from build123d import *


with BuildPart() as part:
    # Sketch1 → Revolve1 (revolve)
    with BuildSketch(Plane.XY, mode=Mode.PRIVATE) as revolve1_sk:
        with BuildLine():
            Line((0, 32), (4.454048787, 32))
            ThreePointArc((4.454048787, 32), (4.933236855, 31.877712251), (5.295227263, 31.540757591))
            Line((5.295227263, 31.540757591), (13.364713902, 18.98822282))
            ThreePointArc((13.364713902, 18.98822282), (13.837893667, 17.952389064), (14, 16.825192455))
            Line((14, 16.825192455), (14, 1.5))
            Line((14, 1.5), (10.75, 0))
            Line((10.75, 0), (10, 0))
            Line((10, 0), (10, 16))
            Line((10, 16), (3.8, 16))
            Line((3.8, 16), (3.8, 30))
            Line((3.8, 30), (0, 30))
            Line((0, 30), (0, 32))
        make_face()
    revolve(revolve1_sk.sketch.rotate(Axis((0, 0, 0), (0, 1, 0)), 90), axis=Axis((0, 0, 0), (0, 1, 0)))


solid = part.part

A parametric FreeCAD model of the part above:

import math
import FreeCAD as App
import Part
import Sketcher

V = App.Vector

doc = App.newDocument("Part")
body = doc.addObject("PartDesign::Body", "Body")

# Sketch on XY plane
sketch1 = doc.addObject("Sketcher::SketchObject", "Sketch")
body.addObject(sketch1)
sketch1.AttachmentSupport = (doc.XY_Plane, [""])
sketch1.MapMode = "FlatFace"
sketch1.addGeometry(Part.LineSegment(V(4.5, 32, 0), V(0, 32, 0)), False)
sketch1.addGeometry(Part.LineSegment(V(0, 32, 0), V(0, 30, 0)), False)
sketch1.addGeometry(Part.LineSegment(V(0, 30, 0), V(3.8, 30, 0)), False)
sketch1.addGeometry(Part.LineSegment(V(3.8, 30, 0), V(3.8, 16, 0)), False)
sketch1.addGeometry(Part.LineSegment(V(3.8, 16, 0), V(10, 16, 0)), False)
sketch1.addGeometry(Part.LineSegment(V(10, 16, 0), V(10, 0, 0)), False)
sketch1.addGeometry(Part.LineSegment(V(10, 0, 0), V(10.8, 0, 0)), False)
sketch1.addGeometry(Part.LineSegment(V(10.8, 0, 0), V(14, 1.5, 0)), False)
sketch1.addGeometry(Part.LineSegment(V(14, 1.5, 0), V(14, 16.8, 0)), False)
sketch1.addGeometry(Part.ArcOfCircle(Part.Circle(V(10, 16.8, 0), V(0, 0, 1), 4), math.radians(0), math.radians(33)), False)
sketch1.addGeometry(Part.LineSegment(V(13.4, 19, 0), V(5.3, 31.5, 0)), False)
sketch1.addGeometry(Part.ArcOfCircle(Part.Circle(V(4.5, 31, 0), V(0, 0, 1), 1), math.radians(33), math.radians(90)), False)
sketch1.addConstraint(Sketcher.Constraint("Coincident", 0, 2, 1, 1))
sketch1.addConstraint(Sketcher.Constraint("Coincident", 1, 2, 2, 1))
sketch1.addConstraint(Sketcher.Constraint("Coincident", 2, 2, 3, 1))
sketch1.addConstraint(Sketcher.Constraint("Coincident", 3, 2, 4, 1))
sketch1.addConstraint(Sketcher.Constraint("Coincident", 4, 2, 5, 1))
sketch1.addConstraint(Sketcher.Constraint("Coincident", 5, 2, 6, 1))
sketch1.addConstraint(Sketcher.Constraint("Coincident", 6, 2, 7, 1))
sketch1.addConstraint(Sketcher.Constraint("Coincident", 7, 2, 8, 1))
sketch1.addConstraint(Sketcher.Constraint("Tangent", 8, 2, 9, 1))
sketch1.addConstraint(Sketcher.Constraint("Tangent", 9, 2, 10, 1))
sketch1.addConstraint(Sketcher.Constraint("Tangent", 10, 2, 11, 1))
sketch1.addConstraint(Sketcher.Constraint("Tangent", 11, 2, 0, 1))
sketch1.addConstraint(Sketcher.Constraint("Horizontal", 0))
sketch1.addConstraint(Sketcher.Constraint("Vertical", 1))
sketch1.addConstraint(Sketcher.Constraint("Horizontal", 2))
sketch1.addConstraint(Sketcher.Constraint("Vertical", 3))
sketch1.addConstraint(Sketcher.Constraint("Horizontal", 4))
sketch1.addConstraint(Sketcher.Constraint("Vertical", 5))
sketch1.addConstraint(Sketcher.Constraint("Horizontal", 6))
sketch1.addConstraint(Sketcher.Constraint("Vertical", 8))
sketch1.addConstraint(Sketcher.Constraint("PointOnObject", 0, 2, -2))
sketch1.addConstraint(Sketcher.Constraint("PointOnObject", 5, 2, -1))
sketch1.addConstraint(Sketcher.Constraint("Vertical", 9, 3, 4, 2))
sketch1.addConstraint(Sketcher.Constraint("Radius", 9, 4.0))
sketch1.addConstraint(Sketcher.Constraint("Radius", 11, 1.0))
sketch1.addConstraint(Sketcher.Constraint("DistanceY", 1, 2, 1, 1, 2.0))
sketch1.addConstraint(Sketcher.Constraint("DistanceY", 3, 2, 3, 1, 14.0))
sketch1.addConstraint(Sketcher.Constraint("DistanceY", 5, 2, 5, 1, 16.0))
sketch1.addConstraint(Sketcher.Constraint("DistanceX", 2, 1, 2, 2, 3.8))
sketch1.addConstraint(Sketcher.Constraint("DistanceX", 4, 1, 4, 2, 6.2))
sketch1.addConstraint(Sketcher.Constraint("DistanceX", 6, 1, 6, 2, 0.75))
sketch1.addConstraint(Sketcher.Constraint("DistanceY", -1, 1, 7, 2, 1.5))
sketch1.addConstraint(Sketcher.Constraint("DistanceX", 0, 2, 0, 1, 4.454049))
sketch1.addConstraint(Sketcher.Constraint("Distance", 10, 14.922558))
revolution = doc.addObject("PartDesign::Revolution", "Revolution")
body.addObject(revolution)
revolution.Profile = sketch1
revolution.ReferenceAxis = (sketch1, ["V_Axis"])
revolution.Angle = 360

doc.recompute()
